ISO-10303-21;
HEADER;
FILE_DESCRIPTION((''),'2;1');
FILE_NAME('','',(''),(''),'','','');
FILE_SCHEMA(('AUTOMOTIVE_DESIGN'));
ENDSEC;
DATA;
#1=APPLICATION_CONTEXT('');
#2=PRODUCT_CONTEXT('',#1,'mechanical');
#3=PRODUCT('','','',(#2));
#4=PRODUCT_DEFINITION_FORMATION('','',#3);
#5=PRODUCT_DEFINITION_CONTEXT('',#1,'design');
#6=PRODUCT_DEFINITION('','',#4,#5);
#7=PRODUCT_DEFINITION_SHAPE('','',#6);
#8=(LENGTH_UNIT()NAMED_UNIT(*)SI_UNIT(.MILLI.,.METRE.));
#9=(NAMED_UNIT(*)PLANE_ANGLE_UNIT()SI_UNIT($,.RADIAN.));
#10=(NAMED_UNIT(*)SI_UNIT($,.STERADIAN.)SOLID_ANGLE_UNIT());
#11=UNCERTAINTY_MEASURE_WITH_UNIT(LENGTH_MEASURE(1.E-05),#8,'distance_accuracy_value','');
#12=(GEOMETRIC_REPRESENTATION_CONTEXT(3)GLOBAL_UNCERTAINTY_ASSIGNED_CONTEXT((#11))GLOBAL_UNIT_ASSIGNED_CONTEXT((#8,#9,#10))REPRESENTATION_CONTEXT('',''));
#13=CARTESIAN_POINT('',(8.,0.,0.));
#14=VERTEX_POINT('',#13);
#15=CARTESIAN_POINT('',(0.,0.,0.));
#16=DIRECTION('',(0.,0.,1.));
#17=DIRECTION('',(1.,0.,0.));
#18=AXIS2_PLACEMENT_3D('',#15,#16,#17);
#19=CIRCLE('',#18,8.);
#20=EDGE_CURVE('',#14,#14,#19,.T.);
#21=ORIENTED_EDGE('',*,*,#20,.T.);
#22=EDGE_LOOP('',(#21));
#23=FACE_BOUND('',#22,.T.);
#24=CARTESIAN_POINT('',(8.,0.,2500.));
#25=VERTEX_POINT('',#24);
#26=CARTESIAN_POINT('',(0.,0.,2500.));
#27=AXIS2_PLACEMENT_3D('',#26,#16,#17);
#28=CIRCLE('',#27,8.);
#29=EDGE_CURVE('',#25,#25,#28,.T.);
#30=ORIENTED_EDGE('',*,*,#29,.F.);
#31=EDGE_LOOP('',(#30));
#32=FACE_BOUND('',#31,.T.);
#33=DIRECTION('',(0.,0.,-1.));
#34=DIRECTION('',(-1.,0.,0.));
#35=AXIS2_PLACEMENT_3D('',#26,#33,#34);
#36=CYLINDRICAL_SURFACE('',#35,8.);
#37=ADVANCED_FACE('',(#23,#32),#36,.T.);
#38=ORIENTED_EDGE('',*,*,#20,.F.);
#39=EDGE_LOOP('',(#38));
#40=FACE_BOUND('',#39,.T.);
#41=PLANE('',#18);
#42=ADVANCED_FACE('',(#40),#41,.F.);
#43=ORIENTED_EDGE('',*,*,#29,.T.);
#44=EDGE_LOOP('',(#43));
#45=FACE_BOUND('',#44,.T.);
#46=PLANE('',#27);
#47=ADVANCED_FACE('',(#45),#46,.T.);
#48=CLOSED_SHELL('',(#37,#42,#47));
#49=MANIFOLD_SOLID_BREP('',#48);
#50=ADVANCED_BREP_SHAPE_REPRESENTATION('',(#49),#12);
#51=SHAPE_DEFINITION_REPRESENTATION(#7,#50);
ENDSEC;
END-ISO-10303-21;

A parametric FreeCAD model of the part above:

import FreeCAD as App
import Part
import Sketcher
Q = App.Units.Quantity

doc = App.newDocument("Part")
body = doc.addObject("PartDesign::Body", "Body")

sketch1 = body.newObject("Sketcher::SketchObject", "Sketch")
sketch1.AttachmentSupport = (doc.getObject("XY_Plane"), [""])
sketch1.MapMode = "FlatFace"
sketch1.addGeometry(Part.Circle(App.Vector(0, 0, 0), App.Vector(0, 0, 1), 8), False)
sketch1.addConstraint(Sketcher.Constraint("Coincident", 0, 3, -1, 1))
sketch1.addConstraint(Sketcher.Constraint("Diameter", 0, Q("16 mm")))
pad1 = body.newObject("PartDesign::Pad", "Pad")
pad1.Profile = sketch1
pad1.Length = 2500

doc.recompute()
